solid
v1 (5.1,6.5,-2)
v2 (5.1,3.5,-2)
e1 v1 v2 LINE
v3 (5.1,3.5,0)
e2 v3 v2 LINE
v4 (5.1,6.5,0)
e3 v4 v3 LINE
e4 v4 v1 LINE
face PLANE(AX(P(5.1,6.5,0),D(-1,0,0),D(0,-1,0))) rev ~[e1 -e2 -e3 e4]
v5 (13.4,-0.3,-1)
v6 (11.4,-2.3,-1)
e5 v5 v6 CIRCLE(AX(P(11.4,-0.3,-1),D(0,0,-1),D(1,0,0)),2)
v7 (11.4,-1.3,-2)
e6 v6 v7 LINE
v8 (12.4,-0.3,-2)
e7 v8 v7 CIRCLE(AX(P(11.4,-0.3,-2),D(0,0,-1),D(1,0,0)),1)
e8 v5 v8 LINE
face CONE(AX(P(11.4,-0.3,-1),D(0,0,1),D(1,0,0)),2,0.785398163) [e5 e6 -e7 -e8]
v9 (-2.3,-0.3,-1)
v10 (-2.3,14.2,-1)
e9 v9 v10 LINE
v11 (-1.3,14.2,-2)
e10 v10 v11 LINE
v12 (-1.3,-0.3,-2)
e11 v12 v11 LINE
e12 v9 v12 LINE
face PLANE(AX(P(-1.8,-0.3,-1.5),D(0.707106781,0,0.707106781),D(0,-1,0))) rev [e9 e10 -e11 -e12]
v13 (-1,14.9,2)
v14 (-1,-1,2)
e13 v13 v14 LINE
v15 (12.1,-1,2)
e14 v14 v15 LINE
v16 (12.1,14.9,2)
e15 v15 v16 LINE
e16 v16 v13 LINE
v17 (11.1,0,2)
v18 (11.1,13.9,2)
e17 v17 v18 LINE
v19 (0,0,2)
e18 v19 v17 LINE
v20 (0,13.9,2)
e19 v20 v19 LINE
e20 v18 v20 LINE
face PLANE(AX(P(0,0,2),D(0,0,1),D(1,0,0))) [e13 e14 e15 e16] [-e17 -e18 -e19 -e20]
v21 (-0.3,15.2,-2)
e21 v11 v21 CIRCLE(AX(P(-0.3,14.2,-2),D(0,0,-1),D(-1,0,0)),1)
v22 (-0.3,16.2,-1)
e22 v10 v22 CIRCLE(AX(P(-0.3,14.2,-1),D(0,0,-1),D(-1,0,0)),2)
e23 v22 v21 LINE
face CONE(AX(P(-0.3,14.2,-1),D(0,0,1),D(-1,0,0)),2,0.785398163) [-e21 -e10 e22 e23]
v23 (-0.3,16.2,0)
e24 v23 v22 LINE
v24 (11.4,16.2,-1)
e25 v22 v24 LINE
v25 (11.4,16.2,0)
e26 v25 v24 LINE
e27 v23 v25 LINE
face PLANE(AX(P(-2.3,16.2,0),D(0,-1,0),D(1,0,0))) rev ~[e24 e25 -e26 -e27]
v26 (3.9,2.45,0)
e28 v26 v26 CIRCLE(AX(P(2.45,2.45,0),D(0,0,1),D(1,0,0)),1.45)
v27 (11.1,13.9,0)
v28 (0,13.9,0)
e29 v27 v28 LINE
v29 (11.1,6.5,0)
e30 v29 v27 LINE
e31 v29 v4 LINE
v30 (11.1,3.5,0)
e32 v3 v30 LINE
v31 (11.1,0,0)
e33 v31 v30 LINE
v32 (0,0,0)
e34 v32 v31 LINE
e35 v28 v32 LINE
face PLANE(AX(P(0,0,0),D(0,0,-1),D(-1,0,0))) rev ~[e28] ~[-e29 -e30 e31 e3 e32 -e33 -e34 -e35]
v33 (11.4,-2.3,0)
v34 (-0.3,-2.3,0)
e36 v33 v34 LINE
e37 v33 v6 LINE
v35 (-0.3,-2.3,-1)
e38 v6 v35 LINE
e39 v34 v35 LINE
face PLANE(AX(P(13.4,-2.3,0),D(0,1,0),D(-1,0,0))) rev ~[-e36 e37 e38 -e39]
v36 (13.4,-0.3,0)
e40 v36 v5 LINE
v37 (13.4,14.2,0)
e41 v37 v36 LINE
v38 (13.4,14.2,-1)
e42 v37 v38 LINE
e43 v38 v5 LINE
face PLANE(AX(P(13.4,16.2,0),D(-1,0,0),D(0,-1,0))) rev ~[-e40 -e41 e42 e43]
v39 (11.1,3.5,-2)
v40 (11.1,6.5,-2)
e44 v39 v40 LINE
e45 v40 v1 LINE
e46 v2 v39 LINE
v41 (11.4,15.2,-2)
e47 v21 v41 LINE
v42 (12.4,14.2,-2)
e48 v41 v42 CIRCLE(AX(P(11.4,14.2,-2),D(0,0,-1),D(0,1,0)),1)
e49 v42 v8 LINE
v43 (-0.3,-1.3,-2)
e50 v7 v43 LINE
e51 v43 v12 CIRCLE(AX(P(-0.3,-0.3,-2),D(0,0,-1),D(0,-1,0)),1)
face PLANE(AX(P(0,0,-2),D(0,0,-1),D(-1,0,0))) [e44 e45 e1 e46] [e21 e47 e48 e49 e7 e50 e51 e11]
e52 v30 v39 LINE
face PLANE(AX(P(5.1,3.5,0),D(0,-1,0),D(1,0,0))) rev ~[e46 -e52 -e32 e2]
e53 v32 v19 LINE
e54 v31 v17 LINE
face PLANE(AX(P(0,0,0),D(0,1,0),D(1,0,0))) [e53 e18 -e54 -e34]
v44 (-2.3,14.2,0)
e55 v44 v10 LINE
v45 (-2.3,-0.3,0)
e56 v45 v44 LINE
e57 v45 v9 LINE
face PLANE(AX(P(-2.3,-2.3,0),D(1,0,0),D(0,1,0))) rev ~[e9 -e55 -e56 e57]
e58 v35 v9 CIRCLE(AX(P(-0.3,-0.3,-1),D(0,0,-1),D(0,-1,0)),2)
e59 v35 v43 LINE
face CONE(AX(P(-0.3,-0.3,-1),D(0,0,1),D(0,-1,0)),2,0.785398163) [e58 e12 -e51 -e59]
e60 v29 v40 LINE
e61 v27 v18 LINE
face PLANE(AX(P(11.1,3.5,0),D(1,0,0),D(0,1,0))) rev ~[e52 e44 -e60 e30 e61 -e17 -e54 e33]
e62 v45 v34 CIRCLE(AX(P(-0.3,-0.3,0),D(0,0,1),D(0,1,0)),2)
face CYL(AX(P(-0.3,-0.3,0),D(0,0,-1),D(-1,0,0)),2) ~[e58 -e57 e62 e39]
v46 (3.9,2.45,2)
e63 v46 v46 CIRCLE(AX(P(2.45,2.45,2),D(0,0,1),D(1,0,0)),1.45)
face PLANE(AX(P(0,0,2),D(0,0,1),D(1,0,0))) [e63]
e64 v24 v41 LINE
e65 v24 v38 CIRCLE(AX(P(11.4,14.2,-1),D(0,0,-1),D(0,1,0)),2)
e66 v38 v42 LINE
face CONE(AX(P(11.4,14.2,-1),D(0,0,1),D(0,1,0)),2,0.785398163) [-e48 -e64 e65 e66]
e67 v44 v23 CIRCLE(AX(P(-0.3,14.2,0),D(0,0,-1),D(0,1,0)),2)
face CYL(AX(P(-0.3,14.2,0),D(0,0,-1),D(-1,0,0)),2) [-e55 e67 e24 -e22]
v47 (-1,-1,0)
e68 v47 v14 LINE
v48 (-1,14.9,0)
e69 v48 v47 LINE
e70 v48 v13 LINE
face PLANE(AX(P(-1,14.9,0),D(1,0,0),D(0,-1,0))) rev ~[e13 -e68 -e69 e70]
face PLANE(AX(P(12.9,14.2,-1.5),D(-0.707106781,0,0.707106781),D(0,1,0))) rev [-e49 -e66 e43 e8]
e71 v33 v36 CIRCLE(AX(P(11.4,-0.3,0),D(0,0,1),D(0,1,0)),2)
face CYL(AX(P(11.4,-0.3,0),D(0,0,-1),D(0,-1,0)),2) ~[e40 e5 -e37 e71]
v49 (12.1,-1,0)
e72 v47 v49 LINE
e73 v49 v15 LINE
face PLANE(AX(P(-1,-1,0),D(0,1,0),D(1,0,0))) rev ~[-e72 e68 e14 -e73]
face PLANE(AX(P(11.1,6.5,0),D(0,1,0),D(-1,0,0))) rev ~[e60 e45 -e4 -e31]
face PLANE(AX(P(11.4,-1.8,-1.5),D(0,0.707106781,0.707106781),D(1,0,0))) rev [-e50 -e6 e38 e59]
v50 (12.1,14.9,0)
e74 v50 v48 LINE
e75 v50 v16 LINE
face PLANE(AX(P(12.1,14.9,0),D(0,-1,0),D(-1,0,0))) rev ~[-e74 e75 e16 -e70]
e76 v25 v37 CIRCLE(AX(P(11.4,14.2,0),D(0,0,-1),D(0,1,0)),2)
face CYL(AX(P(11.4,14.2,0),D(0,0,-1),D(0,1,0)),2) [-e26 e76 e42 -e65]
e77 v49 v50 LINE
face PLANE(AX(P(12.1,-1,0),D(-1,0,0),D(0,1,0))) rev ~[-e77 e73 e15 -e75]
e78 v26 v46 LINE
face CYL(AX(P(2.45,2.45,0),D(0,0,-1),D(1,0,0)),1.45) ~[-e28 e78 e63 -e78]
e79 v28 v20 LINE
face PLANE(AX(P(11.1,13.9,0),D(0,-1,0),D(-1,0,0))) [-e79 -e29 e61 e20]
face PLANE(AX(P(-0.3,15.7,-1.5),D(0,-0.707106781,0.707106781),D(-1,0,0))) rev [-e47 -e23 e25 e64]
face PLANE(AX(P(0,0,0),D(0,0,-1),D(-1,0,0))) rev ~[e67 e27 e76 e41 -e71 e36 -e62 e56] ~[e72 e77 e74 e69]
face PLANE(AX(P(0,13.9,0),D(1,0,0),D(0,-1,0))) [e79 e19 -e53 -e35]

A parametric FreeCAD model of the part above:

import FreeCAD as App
import Part
import Sketcher

V = App.Vector


def edges_at(feature, points):
    """Names of the edges that pass closest to the given points."""
    edges = feature.Shape.Edges
    near = lambda p: min(range(len(edges)), key=lambda i: edges[i].distToShape(Part.Vertex(*p))[0])
    return sorted({f"Edge{near(p) + 1}" for p in points})


def add_polygon(sketch, points):
    """Adds a closed chain of lines whose ends are joined by coincident constraints."""
    first, n = sketch.GeometryCount, len(points)
    for a, b in zip(points, points[1:] + points[:1]):
        sketch.addGeometry(Part.LineSegment(App.Vector(*a, 0), App.Vector(*b, 0)), False)
    for i in range(n):
        sketch.addConstraint(Sketcher.Constraint("Coincident", first + i, 2, first + (i + 1) % n, 1))

doc = App.newDocument("Part")
params = doc.addObject("Spreadsheet::Sheet", "Params")
for row, (alias, value) in enumerate([
    ("sketch1_width", "11.1 mm"),
    ("sketch1_height", "13.9 mm"),
    ("pad1_length", "2 mm"),
    ("sketch2_width", "15.7 mm"),
    ("sketch2_height", "18.5 mm"),
    ("pad2_length", "2 mm"),
    ("sketch3_diameter", "2.9 mm"),
    ("pad3_length", "2 mm"),
    ("sketch4_width", "6 mm"),
    ("sketch4_height", "3 mm"),
    ("pocket1_length", "2 mm"),
    ("fillet_radius", "2 mm"),
    ("chamfer_size", "1 mm"),
], start=1):
    params.set(f"A{row}", alias)
    params.set(f"B{row}", "=" + value)
    params.setAlias(f"B{row}", alias)

body = doc.addObject("PartDesign::Body", "Body")

sketch1 = body.newObject("Sketcher::SketchObject", "Sketch")
sketch1.AttachmentSupport = (doc.getObject("XY_Plane"), [""])
sketch1.MapMode = "FlatFace"
add_polygon(sketch1, [(-1, 15), (-1, -1), (12, -1), (12, 15)])
add_polygon(sketch1, [(11, 0), (0, 0), (0, 14), (11, 14)])
sketch1.addConstraint([
    Sketcher.Constraint("Vertical", 0),
    Sketcher.Constraint("Horizontal", 1),
    Sketcher.Constraint("Vertical", 2),
    Sketcher.Constraint("Horizontal", 3),
    Sketcher.Constraint("Horizontal", 4),
    Sketcher.Constraint("Vertical", 5),
    Sketcher.Constraint("Horizontal", 6),
    Sketcher.Constraint("Vertical", 7),
    Sketcher.Constraint("Coincident", 4, 2, -1, 1),
    Sketcher.Constraint("DistanceX", 4, 2, 4, 1, 11.1),
    Sketcher.Constraint("DistanceY", 5, 1, 5, 2, 13.9),
    Sketcher.Constraint("DistanceX", 0, 2, -1, 1, 1.0),
    Sketcher.Constraint("DistanceY", 0, 2, -1, 1, 1.0),
    Sketcher.Constraint("DistanceY", 5, 2, 3, 2, 1.0),
    Sketcher.Constraint("DistanceX", 6, 2, 2, 2, 1.0),
])
sketch1.setExpression("Constraints[17]", "Params.sketch1_width")
sketch1.setExpression("Constraints[18]", "Params.sketch1_height")
pad1 = body.newObject("PartDesign::Pad", "Pad")
pad1.Profile = sketch1
pad1.setExpression("Length", "Params.pad1_length")

sketch2 = body.newObject("Sketcher::SketchObject", "Sketch001")
sketch2.AttachmentSupport = (doc.getObject("XY_Plane"), [""])
sketch2.MapMode = "FlatFace"
add_polygon(sketch2, [(-2, -2), (-2, 16), (13, 16), (13, -2)])
sketch2.addConstraint([
    Sketcher.Constraint("Vertical", 0),
    Sketcher.Constraint("Horizontal", 1),
    Sketcher.Constraint("Vertical", 2),
    Sketcher.Constraint("Horizontal", 3),
    Sketcher.Constraint("DistanceX", 1, 1, 1, 2, 15.7),
    Sketcher.Constraint("DistanceY", 0, 1, 0, 2, 18.5),
    Sketcher.Constraint("DistanceX", 0, 2, -1, 1, 2.3),
    Sketcher.Constraint("DistanceY", -1, 1, 0, 2, 16.2),
])
sketch2.setExpression("Constraints[8]", "Params.sketch2_width")
sketch2.setExpression("Constraints[9]", "Params.sketch2_height")
pad2 = body.newObject("PartDesign::Pad", "Pad001")
pad2.Profile = sketch2
pad2.setExpression("Length", "Params.pad2_length")
pad2.Reversed = True

sketch3 = body.newObject("Sketcher::SketchObject", "Sketch002")
sketch3.AttachmentSupport = (doc.getObject("XY_Plane"), [""])
sketch3.MapMode = "FlatFace"
sketch3.addGeometry(Part.Circle(V(2.5, 2.5, 0), V(0, 0, 1), 1.4), False)
sketch3.addConstraint([
    Sketcher.Constraint("Diameter", 0, 2.9),
    Sketcher.Constraint("DistanceX", -1, 1, 0, 3, 2.45),
    Sketcher.Constraint("DistanceY", -1, 1, 0, 3, 2.45),
])
sketch3.setExpression("Constraints[0]", "Params.sketch3_diameter")
pad3 = body.newObject("PartDesign::Pad", "Pad002")
pad3.Profile = sketch3
pad3.setExpression("Length", "Params.pad3_length")

sketch4 = body.newObject("Sketcher::SketchObject", "Sketch003")
sketch4.AttachmentSupport = (doc.getObject("XY_Plane"), [""])
sketch4.MapMode = "FlatFace"
add_polygon(sketch4, [(5.1, 6.5), (5.1, 3.5), (11.1, 3.5), (11.1, 6.5)])
sketch4.addConstraint([
    Sketcher.Constraint("Vertical", 0),
    Sketcher.Constraint("Horizontal", 1),
    Sketcher.Constraint("Vertical", 2),
    Sketcher.Constraint("Horizontal", 3),
    Sketcher.Constraint("DistanceX", 1, 1, 1, 2, 6.0),
    Sketcher.Constraint("DistanceY", 0, 2, 0, 1, 3.0),
    Sketcher.Constraint("DistanceY", -1, 1, 0, 2, 3.5),
    Sketcher.Constraint("DistanceX", -1, 1, 0, 2, 5.1),
])
sketch4.setExpression("Constraints[8]", "Params.sketch4_width")
sketch4.setExpression("Constraints[9]", "Params.sketch4_height")
pocket1 = body.newObject("PartDesign::Pocket", "Pocket")
pocket1.Profile = sketch4
pocket1.setExpression("Length", "Params.pocket1_length")
doc.recompute()

fillet = body.newObject("PartDesign::Fillet", "Fillet")
fillet.Base = (pocket1, edges_at(pocket1, [
    (13.4, 16.2, -1),
    (-2.3, 16.2, -1),
    (13.4, -2.3, -1),
    (-2.3, -2.3, -1),
]))
fillet.setExpression("Radius", "Params.fillet_radius")
doc.recompute()

chamfer = body.newObject("PartDesign::Chamfer", "Chamfer")
chamfer.Base = (fillet, edges_at(fillet, [
    (5.55, 16.2, -2),
    (12.814, 15.614, -2),
    (13.4, 6.95, -2),
    (12.814, -1.714, -2),
    (5.55, -2.3, -2),
    (-1.714, -1.714, -2),
    (-2.3, 6.95, -2),
    (-1.714, 15.614, -2),
]))
chamfer.setExpression("Size", "Params.chamfer_size")

doc.recompute()
